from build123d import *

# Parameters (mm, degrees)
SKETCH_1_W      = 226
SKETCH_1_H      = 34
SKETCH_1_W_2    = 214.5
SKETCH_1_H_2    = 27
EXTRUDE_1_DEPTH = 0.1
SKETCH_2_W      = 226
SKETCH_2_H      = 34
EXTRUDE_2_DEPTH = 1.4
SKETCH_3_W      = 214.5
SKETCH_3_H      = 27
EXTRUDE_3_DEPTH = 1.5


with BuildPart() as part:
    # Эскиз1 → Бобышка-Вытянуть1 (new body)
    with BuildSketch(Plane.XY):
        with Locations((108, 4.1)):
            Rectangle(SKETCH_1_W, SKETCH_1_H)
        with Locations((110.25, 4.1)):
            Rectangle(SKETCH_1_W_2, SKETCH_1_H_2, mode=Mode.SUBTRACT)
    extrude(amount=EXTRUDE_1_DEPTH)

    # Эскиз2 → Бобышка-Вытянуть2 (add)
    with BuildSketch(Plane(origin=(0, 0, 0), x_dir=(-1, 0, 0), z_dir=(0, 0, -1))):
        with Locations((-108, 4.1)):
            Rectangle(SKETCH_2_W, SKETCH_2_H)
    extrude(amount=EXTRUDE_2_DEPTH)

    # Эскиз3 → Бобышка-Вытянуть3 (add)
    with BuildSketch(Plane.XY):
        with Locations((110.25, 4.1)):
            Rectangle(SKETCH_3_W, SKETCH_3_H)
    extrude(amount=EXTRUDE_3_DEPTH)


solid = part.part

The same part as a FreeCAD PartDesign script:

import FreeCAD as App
import Part
import Sketcher
from FreeCAD import Vector


def add_polygon(sketch, points):
    """Adds a closed chain of lines whose ends are joined by coincident constraints."""
    first, n = sketch.GeometryCount, len(points)
    for a, b in zip(points, points[1:] + points[:1]):
        sketch.addGeometry(Part.LineSegment(App.Vector(*a, 0), App.Vector(*b, 0)), False)
    for i in range(n):
        sketch.addConstraint(Sketcher.Constraint("Coincident", first + i, 2, first + (i + 1) % n, 1))

doc = App.newDocument("Part")
body = doc.addObject("PartDesign::Body", "Body")

# Sketch on XY plane
sketch1 = doc.addObject("Sketcher::SketchObject", "Sketch")
body.addObject(sketch1)
sketch1.AttachmentSupport = (doc.XY_Plane, [""])
sketch1.MapMode = "FlatFace"
add_polygon(sketch1, [(-5, 21.1), (-5, -12.9), (221, -12.9), (221, 21.1)])  # lines 0-3
add_polygon(sketch1, [(217.5, -9.4), (3, -9.4), (3, 17.6), (217.5, 17.6)])  # lines 4-7
sketch1.addConstraint([
    Sketcher.Constraint("Vertical", 0),
    Sketcher.Constraint("Horizontal", 1),
    Sketcher.Constraint("Vertical", 2),
    Sketcher.Constraint("Horizontal", 3),
    Sketcher.Constraint("Horizontal", 4),
    Sketcher.Constraint("Vertical", 5),
    Sketcher.Constraint("Horizontal", 6),
    Sketcher.Constraint("Vertical", 7),
    Sketcher.Constraint("DistanceX", 1, 1, 1, 2, 226.0),
    Sketcher.Constraint("DistanceY", 0, 2, 0, 1, 34.0),
    Sketcher.Constraint("DistanceY", 5, 1, 5, 2, 27.0),
    Sketcher.Constraint("DistanceX", 4, 2, 4, 1, 214.5),
    Sketcher.Constraint("DistanceX", 0, 2, -1, 1, 5.0),
    Sketcher.Constraint("DistanceX", -1, 1, 4, 2, 3.0),
    Sketcher.Constraint("DistanceY", 0, 2, -1, 1, 12.9),
    Sketcher.Constraint("DistanceY", 4, 2, -1, 1, 9.4),
])
pad1 = doc.addObject("PartDesign::Pad", "Pad")
body.addObject(pad1)
pad1.Profile = sketch1
pad1.Length = 0.1

# Sketch on XY plane
sketch2 = doc.addObject("Sketcher::SketchObject", "Sketch001")
body.addObject(sketch2)
sketch2.AttachmentSupport = (doc.XY_Plane, [""])
sketch2.MapMode = "FlatFace"
add_polygon(sketch2, [(221, 21.1), (221, -12.9), (-5, -12.9), (-5, 21.1)])  # lines 0-3
sketch2.addConstraint([
    Sketcher.Constraint("Vertical", 0),
    Sketcher.Constraint("Horizontal", 1),
    Sketcher.Constraint("Vertical", 2),
    Sketcher.Constraint("Horizontal", 3),
    Sketcher.Constraint("DistanceX", 1, 2, 1, 1, 226.0),
    Sketcher.Constraint("DistanceY", 0, 2, 0, 1, 34.0),
    Sketcher.Constraint("DistanceX", -1, 1, 0, 2, 221.0),
    Sketcher.Constraint("DistanceY", 0, 2, -1, 1, 12.9),
])
pad2 = doc.addObject("PartDesign::Pad", "Pad001")
body.addObject(pad2)
pad2.Profile = sketch2
pad2.Length = 1.4
pad2.Reversed = True

# Sketch on XY plane
sketch3 = doc.addObject("Sketcher::SketchObject", "Sketch002")
body.addObject(sketch3)
sketch3.AttachmentSupport = (doc.XY_Plane, [""])
sketch3.MapMode = "FlatFace"
add_polygon(sketch3, [(3, 17.6), (3, -9.4), (217.5, -9.4), (217.5, 17.6)])  # lines 0-3
sketch3.addConstraint([
    Sketcher.Constraint("Vertical", 0),
    Sketcher.Constraint("Horizontal", 1),
    Sketcher.Constraint("Vertical", 2),
    Sketcher.Constraint("Horizontal", 3),
    Sketcher.Constraint("DistanceY", 0, 2, 0, 1, 27.0),
    Sketcher.Constraint("DistanceX", 1, 1, 1, 2, 214.5),
    Sketcher.Constraint("DistanceX", -1, 1, 0, 2, 3.0),
    Sketcher.Constraint("DistanceY", 0, 2, -1, 1, 9.4),
])
pad3 = doc.addObject("PartDesign::Pad", "Pad002")
body.addObject(pad3)
pad3.Profile = sketch3
pad3.Length = 1.5

doc.recompute()
